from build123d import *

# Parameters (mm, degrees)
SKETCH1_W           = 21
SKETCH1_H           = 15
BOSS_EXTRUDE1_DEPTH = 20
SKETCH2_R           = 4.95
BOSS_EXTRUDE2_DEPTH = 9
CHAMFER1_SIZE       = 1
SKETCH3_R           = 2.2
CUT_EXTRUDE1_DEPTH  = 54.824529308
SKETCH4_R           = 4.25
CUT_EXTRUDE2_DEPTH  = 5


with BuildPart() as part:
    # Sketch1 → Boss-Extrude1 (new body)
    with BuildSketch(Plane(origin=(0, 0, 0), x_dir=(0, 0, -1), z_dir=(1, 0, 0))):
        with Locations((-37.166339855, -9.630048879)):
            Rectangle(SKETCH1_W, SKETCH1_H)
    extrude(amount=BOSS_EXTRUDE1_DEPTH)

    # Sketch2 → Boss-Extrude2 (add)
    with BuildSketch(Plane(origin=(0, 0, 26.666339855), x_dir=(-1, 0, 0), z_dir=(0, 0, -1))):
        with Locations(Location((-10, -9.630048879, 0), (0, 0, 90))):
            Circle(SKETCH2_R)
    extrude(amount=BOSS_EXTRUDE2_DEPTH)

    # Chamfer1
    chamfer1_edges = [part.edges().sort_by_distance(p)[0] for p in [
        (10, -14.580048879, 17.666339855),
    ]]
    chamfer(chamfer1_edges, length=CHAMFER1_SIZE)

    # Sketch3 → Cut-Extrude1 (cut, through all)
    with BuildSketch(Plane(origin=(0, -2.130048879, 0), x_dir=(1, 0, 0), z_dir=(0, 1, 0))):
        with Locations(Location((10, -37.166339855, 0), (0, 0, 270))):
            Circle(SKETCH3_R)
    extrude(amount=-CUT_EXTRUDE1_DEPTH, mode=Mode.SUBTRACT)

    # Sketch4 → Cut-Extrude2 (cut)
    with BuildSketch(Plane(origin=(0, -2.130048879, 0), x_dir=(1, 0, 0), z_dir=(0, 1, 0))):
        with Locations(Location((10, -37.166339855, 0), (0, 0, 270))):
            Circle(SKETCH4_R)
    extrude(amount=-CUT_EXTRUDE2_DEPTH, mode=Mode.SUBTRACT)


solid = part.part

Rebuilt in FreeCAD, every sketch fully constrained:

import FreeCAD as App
import Part
import Sketcher


def edges_at(feature, points):
    """Names of the edges that pass closest to the given points."""
    edges = feature.Shape.Edges
    near = lambda p: min(range(len(edges)), key=lambda i: edges[i].distToShape(Part.Vertex(*p))[0])
    return sorted({f"Edge{near(p) + 1}" for p in points})


def add_polygon(sketch, points):
    """Adds a closed chain of lines whose ends are joined by coincident constraints."""
    first, n = sketch.GeometryCount, len(points)
    for a, b in zip(points, points[1:] + points[:1]):
        sketch.addGeometry(Part.LineSegment(App.Vector(*a, 0), App.Vector(*b, 0)), False)
    for i in range(n):
        sketch.addConstraint(Sketcher.Constraint("Coincident", first + i, 2, first + (i + 1) % n, 1))

doc = App.newDocument("Part")
body = doc.addObject("PartDesign::Body", "Body")

sketch1 = body.newObject("Sketcher::SketchObject", "Sketch")
sketch1.AttachmentSupport = (doc.getObject("YZ_Plane"), [""])
sketch1.MapMode = "FlatFace"
add_polygon(sketch1, [(-2.130049, 47.66634), (-17.130049, 47.66634), (-17.130049, 26.66634), (-2.130049, 26.66634)])
sketch1.addConstraint([
    Sketcher.Constraint("Horizontal", 0),
    Sketcher.Constraint("Vertical", 1),
    Sketcher.Constraint("Horizontal", 2),
    Sketcher.Constraint("Vertical", 3),
    Sketcher.Constraint("DistanceX", 0, 2, 0, 1, 15.0),
    Sketcher.Constraint("DistanceY", 1, 2, 1, 1, 21.0),
    Sketcher.Constraint("DistanceX", 0, 2, -1, 1, 17.130049),
    Sketcher.Constraint("DistanceY", -1, 1, 0, 2, 47.66634),
])
pad1 = body.newObject("PartDesign::Pad", "Pad")
pad1.Profile = sketch1
pad1.Length = 20

sketch2 = body.newObject("Sketcher::SketchObject", "Sketch001")
sketch2.AttachmentSupport = (doc.getObject("XY_Plane"), [""])
sketch2.MapMode = "FlatFace"
sketch2.AttachmentOffset = App.Placement(App.Vector(0, 0, 26.66634), App.Rotation())
sketch2.addGeometry(Part.Circle(App.Vector(10, -9.630049, 0), App.Vector(0, 0, 1), 4.95), False)
sketch2.addConstraint([
    Sketcher.Constraint("Diameter", 0, 9.9),
    Sketcher.Constraint("DistanceX", -1, 1, 0, 3, 10.0),
    Sketcher.Constraint("DistanceY", 0, 3, -1, 1, 9.630049),
])
pad2 = body.newObject("PartDesign::Pad", "Pad001")
pad2.Profile = sketch2
pad2.Length = 9
pad2.Reversed = True
doc.recompute()

chamfer = body.newObject("PartDesign::Chamfer", "Chamfer")
chamfer.Base = (pad2, edges_at(pad2, [(10, -14.58, 17.666)]))
chamfer.Size = 1

sketch3 = body.newObject("Sketcher::SketchObject", "Sketch002")
sketch3.AttachmentSupport = (doc.getObject("XZ_Plane"), [""])
sketch3.MapMode = "FlatFace"
sketch3.AttachmentOffset = App.Placement(App.Vector(0, 0, 2.130049), App.Rotation())
sketch3.addGeometry(Part.Circle(App.Vector(10, 37.16634, 0), App.Vector(0, 0, 1), 2.2), False)
sketch3.addConstraint([
    Sketcher.Constraint("Diameter", 0, 4.4),
    Sketcher.Constraint("DistanceX", -1, 1, 0, 3, 10.0),
    Sketcher.Constraint("DistanceY", -1, 1, 0, 3, 37.16634),
])
pocket1 = body.newObject("PartDesign::Pocket", "Pocket")
pocket1.Profile = sketch3
pocket1.Type = "ThroughAll"
pocket1.Reversed = True

sketch4 = body.newObject("Sketcher::SketchObject", "Sketch003")
sketch4.AttachmentSupport = (doc.getObject("XZ_Plane"), [""])
sketch4.MapMode = "FlatFace"
sketch4.AttachmentOffset = App.Placement(App.Vector(0, 0, 2.130049), App.Rotation())
sketch4.addGeometry(Part.Circle(App.Vector(10, 37.16634, 0), App.Vector(0, 0, 1), 4.25), False)
sketch4.addConstraint([
    Sketcher.Constraint("Diameter", 0, 8.5),
    Sketcher.Constraint("DistanceX", -1, 1, 0, 3, 10.0),
    Sketcher.Constraint("DistanceY", -1, 1, 0, 3, 37.16634),
])
pocket2 = body.newObject("PartDesign::Pocket", "Pocket001")
pocket2.Profile = sketch4
pocket2.Length = 5
pocket2.Reversed = True

doc.recompute()
